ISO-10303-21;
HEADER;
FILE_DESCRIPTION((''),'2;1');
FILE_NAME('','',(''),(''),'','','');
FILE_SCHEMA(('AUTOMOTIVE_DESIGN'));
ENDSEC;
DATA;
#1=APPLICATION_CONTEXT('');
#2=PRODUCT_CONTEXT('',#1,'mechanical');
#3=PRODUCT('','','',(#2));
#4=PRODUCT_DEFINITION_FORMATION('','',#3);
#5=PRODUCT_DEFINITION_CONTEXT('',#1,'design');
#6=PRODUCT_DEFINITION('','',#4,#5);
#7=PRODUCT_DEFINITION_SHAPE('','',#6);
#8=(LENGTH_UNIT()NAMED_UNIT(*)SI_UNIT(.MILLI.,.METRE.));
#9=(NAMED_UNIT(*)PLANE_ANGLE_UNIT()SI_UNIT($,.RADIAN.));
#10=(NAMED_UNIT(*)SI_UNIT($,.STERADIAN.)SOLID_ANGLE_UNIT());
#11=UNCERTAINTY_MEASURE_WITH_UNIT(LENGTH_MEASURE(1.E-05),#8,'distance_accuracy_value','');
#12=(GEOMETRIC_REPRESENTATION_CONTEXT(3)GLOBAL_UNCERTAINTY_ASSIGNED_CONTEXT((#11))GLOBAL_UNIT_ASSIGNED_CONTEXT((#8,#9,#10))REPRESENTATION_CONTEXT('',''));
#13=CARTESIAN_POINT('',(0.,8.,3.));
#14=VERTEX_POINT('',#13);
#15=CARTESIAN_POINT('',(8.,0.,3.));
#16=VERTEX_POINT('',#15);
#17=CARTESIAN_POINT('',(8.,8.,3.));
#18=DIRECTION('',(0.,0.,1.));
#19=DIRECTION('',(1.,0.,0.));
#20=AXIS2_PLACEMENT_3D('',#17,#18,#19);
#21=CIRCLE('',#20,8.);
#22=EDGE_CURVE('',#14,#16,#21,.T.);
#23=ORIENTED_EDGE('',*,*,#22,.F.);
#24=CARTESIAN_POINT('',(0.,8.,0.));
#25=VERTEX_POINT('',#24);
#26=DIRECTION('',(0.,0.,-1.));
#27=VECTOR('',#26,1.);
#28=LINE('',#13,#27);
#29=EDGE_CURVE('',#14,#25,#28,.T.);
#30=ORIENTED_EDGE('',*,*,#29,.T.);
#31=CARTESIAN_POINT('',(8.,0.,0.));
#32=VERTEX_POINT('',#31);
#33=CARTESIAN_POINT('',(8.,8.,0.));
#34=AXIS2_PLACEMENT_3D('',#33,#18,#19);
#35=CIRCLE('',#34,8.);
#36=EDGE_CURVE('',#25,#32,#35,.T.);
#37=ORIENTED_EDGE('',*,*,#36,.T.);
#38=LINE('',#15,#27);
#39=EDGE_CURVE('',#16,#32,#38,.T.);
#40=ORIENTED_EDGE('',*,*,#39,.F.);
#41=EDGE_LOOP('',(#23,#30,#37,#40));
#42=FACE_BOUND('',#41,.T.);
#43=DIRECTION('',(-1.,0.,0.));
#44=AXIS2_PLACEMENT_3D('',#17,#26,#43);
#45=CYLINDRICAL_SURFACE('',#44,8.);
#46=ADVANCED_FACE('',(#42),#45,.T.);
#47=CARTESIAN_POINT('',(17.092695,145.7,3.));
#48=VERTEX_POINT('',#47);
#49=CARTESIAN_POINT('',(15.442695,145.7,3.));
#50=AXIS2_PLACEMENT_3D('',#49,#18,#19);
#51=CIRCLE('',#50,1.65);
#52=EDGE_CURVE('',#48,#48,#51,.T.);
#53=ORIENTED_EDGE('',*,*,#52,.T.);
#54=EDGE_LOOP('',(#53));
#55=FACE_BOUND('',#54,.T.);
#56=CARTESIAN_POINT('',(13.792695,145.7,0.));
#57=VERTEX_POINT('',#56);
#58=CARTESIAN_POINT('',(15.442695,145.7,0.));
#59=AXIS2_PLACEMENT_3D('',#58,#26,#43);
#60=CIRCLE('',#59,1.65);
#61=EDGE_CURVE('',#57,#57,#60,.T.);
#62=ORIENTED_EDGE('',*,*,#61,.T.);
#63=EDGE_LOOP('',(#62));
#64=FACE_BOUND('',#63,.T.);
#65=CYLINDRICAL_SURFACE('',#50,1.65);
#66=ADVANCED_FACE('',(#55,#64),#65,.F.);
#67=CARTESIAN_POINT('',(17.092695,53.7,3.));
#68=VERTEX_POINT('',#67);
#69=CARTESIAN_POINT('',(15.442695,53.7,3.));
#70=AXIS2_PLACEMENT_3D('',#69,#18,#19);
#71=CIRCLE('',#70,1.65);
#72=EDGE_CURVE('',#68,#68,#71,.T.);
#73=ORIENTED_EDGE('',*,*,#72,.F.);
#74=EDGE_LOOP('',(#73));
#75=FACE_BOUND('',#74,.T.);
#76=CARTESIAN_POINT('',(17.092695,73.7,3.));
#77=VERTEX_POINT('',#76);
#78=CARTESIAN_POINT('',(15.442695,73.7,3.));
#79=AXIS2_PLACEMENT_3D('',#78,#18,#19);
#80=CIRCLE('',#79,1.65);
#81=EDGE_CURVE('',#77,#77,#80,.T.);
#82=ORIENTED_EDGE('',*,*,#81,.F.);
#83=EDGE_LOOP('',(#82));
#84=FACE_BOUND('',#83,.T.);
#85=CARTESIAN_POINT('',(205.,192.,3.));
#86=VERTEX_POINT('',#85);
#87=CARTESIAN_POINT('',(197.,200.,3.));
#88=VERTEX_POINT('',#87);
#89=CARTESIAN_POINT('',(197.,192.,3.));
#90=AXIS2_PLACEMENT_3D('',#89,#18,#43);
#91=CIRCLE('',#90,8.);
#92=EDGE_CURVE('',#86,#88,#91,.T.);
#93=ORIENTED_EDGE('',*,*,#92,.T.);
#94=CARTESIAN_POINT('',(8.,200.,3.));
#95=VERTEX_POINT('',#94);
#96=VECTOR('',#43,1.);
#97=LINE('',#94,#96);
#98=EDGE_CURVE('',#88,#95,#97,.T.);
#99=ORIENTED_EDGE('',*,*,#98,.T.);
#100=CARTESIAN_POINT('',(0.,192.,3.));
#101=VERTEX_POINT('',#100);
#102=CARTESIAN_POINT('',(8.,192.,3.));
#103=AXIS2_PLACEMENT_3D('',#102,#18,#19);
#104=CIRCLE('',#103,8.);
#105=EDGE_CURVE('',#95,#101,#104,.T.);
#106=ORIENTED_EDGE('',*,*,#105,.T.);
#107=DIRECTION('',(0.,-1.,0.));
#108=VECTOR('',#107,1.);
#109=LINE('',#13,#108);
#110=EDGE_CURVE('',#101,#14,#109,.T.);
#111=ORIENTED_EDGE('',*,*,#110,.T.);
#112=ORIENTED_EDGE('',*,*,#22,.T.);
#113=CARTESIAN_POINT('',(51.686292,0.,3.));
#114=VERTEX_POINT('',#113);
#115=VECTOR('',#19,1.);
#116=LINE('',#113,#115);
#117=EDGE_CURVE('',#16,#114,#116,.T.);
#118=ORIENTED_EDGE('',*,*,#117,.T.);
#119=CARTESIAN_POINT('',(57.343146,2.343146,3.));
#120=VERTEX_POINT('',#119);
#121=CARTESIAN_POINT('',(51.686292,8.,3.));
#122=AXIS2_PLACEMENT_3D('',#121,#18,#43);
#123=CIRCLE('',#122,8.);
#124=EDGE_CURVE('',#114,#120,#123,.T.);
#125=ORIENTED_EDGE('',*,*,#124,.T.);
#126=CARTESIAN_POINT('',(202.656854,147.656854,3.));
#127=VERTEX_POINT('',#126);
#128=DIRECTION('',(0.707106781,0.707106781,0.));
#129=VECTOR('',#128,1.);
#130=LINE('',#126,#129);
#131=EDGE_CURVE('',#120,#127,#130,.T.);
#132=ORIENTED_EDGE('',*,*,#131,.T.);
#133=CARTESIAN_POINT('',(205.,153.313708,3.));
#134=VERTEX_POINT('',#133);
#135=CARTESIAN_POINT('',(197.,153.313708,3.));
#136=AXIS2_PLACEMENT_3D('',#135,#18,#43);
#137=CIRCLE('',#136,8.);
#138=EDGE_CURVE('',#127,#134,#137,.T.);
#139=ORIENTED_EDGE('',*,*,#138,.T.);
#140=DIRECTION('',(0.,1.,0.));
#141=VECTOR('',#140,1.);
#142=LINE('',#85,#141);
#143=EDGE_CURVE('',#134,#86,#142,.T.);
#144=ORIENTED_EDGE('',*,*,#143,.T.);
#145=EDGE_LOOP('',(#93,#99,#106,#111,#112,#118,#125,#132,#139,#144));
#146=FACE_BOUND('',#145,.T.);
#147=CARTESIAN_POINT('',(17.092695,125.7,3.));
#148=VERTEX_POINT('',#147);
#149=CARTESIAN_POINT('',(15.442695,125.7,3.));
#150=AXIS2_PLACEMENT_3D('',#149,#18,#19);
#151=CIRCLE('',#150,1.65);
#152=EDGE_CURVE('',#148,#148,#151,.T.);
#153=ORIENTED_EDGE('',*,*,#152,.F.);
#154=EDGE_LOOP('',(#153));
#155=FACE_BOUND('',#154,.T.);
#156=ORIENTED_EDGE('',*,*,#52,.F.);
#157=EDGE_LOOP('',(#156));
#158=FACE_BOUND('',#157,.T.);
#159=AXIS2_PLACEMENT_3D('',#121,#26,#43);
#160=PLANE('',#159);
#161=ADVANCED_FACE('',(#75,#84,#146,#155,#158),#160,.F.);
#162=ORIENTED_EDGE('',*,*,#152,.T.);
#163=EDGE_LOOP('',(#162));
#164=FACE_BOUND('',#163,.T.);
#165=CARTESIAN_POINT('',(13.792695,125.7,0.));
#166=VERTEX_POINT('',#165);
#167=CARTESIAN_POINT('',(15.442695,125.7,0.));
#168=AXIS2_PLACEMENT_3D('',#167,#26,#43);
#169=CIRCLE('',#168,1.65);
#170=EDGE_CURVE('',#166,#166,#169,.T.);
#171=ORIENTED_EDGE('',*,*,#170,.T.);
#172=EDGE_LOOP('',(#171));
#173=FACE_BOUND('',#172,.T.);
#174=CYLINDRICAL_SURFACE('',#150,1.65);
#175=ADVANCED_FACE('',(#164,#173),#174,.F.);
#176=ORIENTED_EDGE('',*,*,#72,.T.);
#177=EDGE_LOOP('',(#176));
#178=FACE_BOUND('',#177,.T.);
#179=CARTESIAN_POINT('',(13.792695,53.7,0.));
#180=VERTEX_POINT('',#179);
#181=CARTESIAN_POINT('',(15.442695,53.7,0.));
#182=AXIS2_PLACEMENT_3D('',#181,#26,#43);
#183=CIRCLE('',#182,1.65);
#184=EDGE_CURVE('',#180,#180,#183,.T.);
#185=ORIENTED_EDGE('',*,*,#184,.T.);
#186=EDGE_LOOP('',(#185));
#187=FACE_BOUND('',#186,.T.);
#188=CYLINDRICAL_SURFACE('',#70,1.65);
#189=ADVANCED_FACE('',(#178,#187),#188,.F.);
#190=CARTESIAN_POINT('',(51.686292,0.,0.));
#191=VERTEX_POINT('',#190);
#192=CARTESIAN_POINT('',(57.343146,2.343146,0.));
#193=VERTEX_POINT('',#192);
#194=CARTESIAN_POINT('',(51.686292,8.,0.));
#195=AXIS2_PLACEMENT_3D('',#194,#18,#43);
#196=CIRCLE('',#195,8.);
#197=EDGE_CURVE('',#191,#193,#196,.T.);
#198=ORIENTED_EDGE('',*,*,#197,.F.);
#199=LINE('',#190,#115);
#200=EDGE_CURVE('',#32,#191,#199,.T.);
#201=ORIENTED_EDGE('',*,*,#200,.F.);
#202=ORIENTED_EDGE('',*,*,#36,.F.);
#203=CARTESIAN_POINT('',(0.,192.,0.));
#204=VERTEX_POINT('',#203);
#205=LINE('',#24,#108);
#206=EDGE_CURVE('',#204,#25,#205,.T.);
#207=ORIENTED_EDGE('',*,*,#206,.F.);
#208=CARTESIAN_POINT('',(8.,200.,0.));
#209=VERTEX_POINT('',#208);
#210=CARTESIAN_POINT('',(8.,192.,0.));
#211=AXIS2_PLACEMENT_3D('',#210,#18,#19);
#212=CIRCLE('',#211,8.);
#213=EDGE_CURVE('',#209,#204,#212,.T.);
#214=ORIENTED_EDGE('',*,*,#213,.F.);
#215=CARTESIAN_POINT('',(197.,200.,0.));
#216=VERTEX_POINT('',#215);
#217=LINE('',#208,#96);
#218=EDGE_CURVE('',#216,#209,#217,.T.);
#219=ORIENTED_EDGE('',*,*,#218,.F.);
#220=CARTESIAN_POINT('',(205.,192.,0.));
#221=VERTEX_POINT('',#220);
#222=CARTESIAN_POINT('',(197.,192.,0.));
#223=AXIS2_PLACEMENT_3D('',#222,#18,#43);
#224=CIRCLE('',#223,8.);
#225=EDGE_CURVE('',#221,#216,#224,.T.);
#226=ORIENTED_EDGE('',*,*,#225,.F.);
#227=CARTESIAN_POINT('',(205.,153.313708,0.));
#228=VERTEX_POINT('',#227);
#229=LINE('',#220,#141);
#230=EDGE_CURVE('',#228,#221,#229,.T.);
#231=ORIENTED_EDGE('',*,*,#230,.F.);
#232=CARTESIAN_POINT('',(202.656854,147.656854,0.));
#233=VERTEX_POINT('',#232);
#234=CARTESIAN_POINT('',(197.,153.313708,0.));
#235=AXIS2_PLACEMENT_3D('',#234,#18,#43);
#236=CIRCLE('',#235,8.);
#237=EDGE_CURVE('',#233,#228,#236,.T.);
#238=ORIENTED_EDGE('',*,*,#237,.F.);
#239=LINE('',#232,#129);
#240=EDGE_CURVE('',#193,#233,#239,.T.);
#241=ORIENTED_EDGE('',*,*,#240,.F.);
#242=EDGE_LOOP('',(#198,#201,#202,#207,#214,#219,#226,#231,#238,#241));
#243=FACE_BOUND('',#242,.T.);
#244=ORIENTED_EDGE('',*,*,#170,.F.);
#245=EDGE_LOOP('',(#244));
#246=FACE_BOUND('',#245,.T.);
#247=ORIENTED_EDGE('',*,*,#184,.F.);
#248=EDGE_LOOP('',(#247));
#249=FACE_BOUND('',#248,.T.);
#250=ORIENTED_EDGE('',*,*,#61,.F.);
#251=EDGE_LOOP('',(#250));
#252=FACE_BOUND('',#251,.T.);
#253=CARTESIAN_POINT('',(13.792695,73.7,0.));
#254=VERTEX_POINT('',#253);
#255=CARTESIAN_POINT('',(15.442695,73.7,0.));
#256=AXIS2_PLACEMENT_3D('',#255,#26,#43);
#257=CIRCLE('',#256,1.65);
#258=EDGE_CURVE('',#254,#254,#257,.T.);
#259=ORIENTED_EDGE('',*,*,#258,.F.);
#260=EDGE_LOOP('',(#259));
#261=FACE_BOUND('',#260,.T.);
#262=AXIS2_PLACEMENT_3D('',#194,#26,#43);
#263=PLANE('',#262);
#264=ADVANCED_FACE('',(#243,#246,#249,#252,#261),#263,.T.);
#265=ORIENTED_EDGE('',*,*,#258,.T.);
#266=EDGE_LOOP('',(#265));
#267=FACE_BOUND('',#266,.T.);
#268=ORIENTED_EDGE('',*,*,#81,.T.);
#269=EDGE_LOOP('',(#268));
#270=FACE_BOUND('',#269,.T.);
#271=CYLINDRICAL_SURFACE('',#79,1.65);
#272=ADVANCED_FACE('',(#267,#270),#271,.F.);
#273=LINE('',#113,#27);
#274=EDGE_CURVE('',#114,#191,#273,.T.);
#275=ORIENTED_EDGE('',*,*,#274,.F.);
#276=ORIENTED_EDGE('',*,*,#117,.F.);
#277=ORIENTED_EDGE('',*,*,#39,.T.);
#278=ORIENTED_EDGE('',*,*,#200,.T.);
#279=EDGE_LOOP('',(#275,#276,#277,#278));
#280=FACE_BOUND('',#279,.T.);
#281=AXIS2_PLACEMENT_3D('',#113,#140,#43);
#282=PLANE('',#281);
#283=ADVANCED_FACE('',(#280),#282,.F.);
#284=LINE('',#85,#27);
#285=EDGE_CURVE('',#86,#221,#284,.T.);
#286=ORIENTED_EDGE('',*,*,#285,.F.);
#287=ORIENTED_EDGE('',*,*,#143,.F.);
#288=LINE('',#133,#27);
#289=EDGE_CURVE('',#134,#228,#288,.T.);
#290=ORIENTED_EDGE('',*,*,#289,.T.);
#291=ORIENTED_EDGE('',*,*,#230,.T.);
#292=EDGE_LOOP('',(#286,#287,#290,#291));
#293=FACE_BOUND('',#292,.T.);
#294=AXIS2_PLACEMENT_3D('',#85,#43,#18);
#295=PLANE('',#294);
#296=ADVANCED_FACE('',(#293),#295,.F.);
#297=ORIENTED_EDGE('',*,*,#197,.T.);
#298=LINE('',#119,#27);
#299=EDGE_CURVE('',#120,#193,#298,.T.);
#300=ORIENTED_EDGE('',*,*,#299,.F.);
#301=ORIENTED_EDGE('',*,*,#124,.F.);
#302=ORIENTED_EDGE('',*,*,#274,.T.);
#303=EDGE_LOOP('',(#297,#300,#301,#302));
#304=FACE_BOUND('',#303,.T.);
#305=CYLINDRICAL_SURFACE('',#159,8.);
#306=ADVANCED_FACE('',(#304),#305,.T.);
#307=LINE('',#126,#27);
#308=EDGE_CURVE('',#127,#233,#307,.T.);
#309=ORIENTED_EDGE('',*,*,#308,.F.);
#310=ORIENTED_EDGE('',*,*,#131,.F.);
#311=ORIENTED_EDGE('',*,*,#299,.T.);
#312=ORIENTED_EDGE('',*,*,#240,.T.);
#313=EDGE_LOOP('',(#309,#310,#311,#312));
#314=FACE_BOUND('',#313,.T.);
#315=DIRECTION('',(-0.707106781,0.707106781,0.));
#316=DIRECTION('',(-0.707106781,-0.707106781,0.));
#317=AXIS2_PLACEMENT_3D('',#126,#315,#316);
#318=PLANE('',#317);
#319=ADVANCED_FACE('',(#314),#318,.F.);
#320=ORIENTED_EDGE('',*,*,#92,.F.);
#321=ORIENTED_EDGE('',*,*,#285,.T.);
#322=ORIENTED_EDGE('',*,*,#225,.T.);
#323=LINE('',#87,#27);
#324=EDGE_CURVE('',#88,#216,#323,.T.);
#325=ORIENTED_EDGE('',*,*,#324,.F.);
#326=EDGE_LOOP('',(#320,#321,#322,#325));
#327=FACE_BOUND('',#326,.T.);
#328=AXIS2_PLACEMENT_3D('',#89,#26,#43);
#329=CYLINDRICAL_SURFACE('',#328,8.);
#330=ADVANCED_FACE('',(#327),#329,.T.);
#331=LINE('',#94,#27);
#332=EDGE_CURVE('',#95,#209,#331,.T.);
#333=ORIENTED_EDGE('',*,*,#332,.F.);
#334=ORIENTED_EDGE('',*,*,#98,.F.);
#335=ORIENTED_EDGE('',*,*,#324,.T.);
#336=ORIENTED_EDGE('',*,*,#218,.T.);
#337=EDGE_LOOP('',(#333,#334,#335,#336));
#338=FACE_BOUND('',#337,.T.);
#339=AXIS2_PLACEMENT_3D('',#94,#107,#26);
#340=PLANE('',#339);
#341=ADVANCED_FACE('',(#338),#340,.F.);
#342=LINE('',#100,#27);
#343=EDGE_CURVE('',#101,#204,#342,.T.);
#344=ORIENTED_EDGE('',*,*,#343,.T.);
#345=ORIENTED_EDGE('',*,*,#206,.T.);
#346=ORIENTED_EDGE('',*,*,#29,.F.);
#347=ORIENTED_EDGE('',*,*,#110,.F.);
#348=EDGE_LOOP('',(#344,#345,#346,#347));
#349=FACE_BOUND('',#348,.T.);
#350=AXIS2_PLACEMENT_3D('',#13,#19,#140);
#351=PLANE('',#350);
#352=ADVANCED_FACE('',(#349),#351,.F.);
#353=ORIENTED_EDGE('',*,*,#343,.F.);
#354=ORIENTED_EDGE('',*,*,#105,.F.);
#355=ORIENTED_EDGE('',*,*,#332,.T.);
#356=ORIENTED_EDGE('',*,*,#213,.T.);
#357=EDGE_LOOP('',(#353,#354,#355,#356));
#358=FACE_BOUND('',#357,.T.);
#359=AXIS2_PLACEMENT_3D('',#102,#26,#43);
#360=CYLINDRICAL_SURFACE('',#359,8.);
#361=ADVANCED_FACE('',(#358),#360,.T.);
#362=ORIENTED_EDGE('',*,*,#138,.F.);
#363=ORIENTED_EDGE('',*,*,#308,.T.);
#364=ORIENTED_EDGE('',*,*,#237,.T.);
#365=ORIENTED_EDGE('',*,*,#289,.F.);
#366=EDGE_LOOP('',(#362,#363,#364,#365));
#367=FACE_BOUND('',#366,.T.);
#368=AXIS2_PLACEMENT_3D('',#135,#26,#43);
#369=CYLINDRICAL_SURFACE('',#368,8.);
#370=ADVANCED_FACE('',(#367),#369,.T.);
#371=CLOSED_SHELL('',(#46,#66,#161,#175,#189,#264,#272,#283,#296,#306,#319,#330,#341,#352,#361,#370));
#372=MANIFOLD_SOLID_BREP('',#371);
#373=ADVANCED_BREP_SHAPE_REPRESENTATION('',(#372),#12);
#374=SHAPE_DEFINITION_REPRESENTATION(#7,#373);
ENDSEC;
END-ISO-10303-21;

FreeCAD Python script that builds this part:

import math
import FreeCAD as App
import Part
import Sketcher

V = App.Vector
Q = App.Units.Quantity

doc = App.newDocument("Part")
body = doc.addObject("PartDesign::Body", "Body")

# Sketch on XY plane
sketch1 = body.newObject("Sketcher::SketchObject", "Sketch")
sketch1.AttachmentSupport = (doc.getObject("XY_Plane"), [""])
sketch1.MapMode = "FlatFace"
sketch1.addGeometry(Part.LineSegment(V(0, 192, 0), V(0, 8, 0)), False)
sketch1.addGeometry(Part.ArcOfCircle(Part.Circle(V(8, 8, 0), V(0, 0, 1), 8), math.radians(-180), math.radians(-90)), False)
sketch1.addGeometry(Part.LineSegment(V(8, 0, 0), V(52, 0, 0)), False)
sketch1.addGeometry(Part.ArcOfCircle(Part.Circle(V(52, 8, 0), V(0, 0, 1), 8), math.radians(-90), math.radians(-45)), False)
sketch1.addGeometry(Part.LineSegment(V(57, 2, 0), V(203, 148, 0)), False)
sketch1.addGeometry(Part.ArcOfCircle(Part.Circle(V(197, 153, 0), V(0, 0, 1), 8), math.radians(-45), math.radians(0)), False)
sketch1.addGeometry(Part.LineSegment(V(205, 153, 0), V(205, 192, 0)), False)
sketch1.addGeometry(Part.ArcOfCircle(Part.Circle(V(197, 192, 0), V(0, 0, 1), 8), math.radians(0), math.radians(90)), False)
sketch1.addGeometry(Part.LineSegment(V(197, 200, 0), V(8, 200, 0)), False)
sketch1.addGeometry(Part.ArcOfCircle(Part.Circle(V(8, 192, 0), V(0, 0, 1), 8), math.radians(90), math.radians(180)), False)
sketch1.addConstraint(Sketcher.Constraint("Tangent", 0, 2, 1, 1))
sketch1.addConstraint(Sketcher.Constraint("Tangent", 1, 2, 2, 1))
sketch1.addConstraint(Sketcher.Constraint("Tangent", 2, 2, 3, 1))
sketch1.addConstraint(Sketcher.Constraint("Tangent", 3, 2, 4, 1))
sketch1.addConstraint(Sketcher.Constraint("Tangent", 4, 2, 5, 1))
sketch1.addConstraint(Sketcher.Constraint("Tangent", 5, 2, 6, 1))
sketch1.addConstraint(Sketcher.Constraint("Tangent", 6, 2, 7, 1))
sketch1.addConstraint(Sketcher.Constraint("Tangent", 7, 2, 8, 1))
sketch1.addConstraint(Sketcher.Constraint("Tangent", 8, 2, 9, 1))
sketch1.addConstraint(Sketcher.Constraint("Tangent", 9, 2, 0, 1))
sketch1.addConstraint(Sketcher.Constraint("Vertical", 0))
sketch1.addConstraint(Sketcher.Constraint("Horizontal", 2))
sketch1.addConstraint(Sketcher.Constraint("Vertical", 6))
sketch1.addConstraint(Sketcher.Constraint("Horizontal", 8))
sketch1.addConstraint(Sketcher.Constraint("Equal", 1, 3))
sketch1.addConstraint(Sketcher.Constraint("Equal", 3, 5))
sketch1.addConstraint(Sketcher.Constraint("Equal", 5, 7))
sketch1.addConstraint(Sketcher.Constraint("Equal", 7, 9))
sketch1.addConstraint(Sketcher.Constraint("PointOnObject", 0, 2, -2))
sketch1.addConstraint(Sketcher.Constraint("PointOnObject", 1, 2, -1))
sketch1.addConstraint(Sketcher.Constraint("Radius", 1, Q("8 mm")))
sketch1.addConstraint(Sketcher.Constraint("DistanceX", 8, 2, 8, 1, Q("189 mm")))
sketch1.addConstraint(Sketcher.Constraint("DistanceY", 0, 2, 0, 1, Q("184 mm")))
sketch1.addConstraint(Sketcher.Constraint("Angle", 4, Q("45 deg")))
sketch1.addConstraint(Sketcher.Constraint("DistanceX", 2, 1, 2, 2, Q("43.686292 mm")))
pad1 = body.newObject("PartDesign::Pad", "Pad")
pad1.Profile = sketch1
pad1.Length = 3

# Sketch on XY plane
sketch2 = body.newObject("Sketcher::SketchObject", "Sketch001")
sketch2.AttachmentSupport = (doc.getObject("XY_Plane"), [""])
sketch2.MapMode = "FlatFace"
sketch2.AttachmentOffset = App.Placement(V(0, 0, 3), App.Rotation())
sketch2.addGeometry(Part.Circle(V(15.4, 145.7, 0), V(0, 0, 1), 1.6), False)
sketch2.addGeometry(Part.Circle(V(15.4, 125.7, 0), V(0, 0, 1), 1.6), False)
sketch2.addGeometry(Part.Circle(V(15.4, 73.7, 0), V(0, 0, 1), 1.6), False)
sketch2.addGeometry(Part.Circle(V(15.4, 53.7, 0), V(0, 0, 1), 1.6), False)
sketch2.addConstraint(Sketcher.Constraint("Equal", 0, 1))
sketch2.addConstraint(Sketcher.Constraint("Equal", 1, 2))
sketch2.addConstraint(Sketcher.Constraint("Equal", 2, 3))
sketch2.addConstraint(Sketcher.Constraint("Vertical", 0, 3, 1, 3))
sketch2.addConstraint(Sketcher.Constraint("Vertical", 1, 3, 2, 3))
sketch2.addConstraint(Sketcher.Constraint("Vertical", 2, 3, 3, 3))
sketch2.addConstraint(Sketcher.Constraint("Diameter", 0, Q("3.3 mm")))
sketch2.addConstraint(Sketcher.Constraint("DistanceY", 1, 3, 0, 3, Q("20 mm")))
sketch2.addConstraint(Sketcher.Constraint("DistanceY", 2, 3, 1, 3, Q("52 mm")))
sketch2.addConstraint(Sketcher.Constraint("DistanceY", 3, 3, 2, 3, Q("20 mm")))
sketch2.addConstraint(Sketcher.Constraint("DistanceY", -1, 1, 0, 3, Q("145.7 mm")))
sketch2.addConstraint(Sketcher.Constraint("DistanceX", -1, 1, 0, 3, Q("15.442695 mm")))
doc.recompute()
hole = body.newObject("PartDesign::Hole", "Hole")
hole.Profile = sketch2
hole.ThreadType = "None"
hole.Diameter = 3.3
hole.DepthType = "Dimension"
hole.Depth = 40.6
hole.DrillPoint = "Angled"
hole.DrillPointAngle = 118

doc.recompute()
